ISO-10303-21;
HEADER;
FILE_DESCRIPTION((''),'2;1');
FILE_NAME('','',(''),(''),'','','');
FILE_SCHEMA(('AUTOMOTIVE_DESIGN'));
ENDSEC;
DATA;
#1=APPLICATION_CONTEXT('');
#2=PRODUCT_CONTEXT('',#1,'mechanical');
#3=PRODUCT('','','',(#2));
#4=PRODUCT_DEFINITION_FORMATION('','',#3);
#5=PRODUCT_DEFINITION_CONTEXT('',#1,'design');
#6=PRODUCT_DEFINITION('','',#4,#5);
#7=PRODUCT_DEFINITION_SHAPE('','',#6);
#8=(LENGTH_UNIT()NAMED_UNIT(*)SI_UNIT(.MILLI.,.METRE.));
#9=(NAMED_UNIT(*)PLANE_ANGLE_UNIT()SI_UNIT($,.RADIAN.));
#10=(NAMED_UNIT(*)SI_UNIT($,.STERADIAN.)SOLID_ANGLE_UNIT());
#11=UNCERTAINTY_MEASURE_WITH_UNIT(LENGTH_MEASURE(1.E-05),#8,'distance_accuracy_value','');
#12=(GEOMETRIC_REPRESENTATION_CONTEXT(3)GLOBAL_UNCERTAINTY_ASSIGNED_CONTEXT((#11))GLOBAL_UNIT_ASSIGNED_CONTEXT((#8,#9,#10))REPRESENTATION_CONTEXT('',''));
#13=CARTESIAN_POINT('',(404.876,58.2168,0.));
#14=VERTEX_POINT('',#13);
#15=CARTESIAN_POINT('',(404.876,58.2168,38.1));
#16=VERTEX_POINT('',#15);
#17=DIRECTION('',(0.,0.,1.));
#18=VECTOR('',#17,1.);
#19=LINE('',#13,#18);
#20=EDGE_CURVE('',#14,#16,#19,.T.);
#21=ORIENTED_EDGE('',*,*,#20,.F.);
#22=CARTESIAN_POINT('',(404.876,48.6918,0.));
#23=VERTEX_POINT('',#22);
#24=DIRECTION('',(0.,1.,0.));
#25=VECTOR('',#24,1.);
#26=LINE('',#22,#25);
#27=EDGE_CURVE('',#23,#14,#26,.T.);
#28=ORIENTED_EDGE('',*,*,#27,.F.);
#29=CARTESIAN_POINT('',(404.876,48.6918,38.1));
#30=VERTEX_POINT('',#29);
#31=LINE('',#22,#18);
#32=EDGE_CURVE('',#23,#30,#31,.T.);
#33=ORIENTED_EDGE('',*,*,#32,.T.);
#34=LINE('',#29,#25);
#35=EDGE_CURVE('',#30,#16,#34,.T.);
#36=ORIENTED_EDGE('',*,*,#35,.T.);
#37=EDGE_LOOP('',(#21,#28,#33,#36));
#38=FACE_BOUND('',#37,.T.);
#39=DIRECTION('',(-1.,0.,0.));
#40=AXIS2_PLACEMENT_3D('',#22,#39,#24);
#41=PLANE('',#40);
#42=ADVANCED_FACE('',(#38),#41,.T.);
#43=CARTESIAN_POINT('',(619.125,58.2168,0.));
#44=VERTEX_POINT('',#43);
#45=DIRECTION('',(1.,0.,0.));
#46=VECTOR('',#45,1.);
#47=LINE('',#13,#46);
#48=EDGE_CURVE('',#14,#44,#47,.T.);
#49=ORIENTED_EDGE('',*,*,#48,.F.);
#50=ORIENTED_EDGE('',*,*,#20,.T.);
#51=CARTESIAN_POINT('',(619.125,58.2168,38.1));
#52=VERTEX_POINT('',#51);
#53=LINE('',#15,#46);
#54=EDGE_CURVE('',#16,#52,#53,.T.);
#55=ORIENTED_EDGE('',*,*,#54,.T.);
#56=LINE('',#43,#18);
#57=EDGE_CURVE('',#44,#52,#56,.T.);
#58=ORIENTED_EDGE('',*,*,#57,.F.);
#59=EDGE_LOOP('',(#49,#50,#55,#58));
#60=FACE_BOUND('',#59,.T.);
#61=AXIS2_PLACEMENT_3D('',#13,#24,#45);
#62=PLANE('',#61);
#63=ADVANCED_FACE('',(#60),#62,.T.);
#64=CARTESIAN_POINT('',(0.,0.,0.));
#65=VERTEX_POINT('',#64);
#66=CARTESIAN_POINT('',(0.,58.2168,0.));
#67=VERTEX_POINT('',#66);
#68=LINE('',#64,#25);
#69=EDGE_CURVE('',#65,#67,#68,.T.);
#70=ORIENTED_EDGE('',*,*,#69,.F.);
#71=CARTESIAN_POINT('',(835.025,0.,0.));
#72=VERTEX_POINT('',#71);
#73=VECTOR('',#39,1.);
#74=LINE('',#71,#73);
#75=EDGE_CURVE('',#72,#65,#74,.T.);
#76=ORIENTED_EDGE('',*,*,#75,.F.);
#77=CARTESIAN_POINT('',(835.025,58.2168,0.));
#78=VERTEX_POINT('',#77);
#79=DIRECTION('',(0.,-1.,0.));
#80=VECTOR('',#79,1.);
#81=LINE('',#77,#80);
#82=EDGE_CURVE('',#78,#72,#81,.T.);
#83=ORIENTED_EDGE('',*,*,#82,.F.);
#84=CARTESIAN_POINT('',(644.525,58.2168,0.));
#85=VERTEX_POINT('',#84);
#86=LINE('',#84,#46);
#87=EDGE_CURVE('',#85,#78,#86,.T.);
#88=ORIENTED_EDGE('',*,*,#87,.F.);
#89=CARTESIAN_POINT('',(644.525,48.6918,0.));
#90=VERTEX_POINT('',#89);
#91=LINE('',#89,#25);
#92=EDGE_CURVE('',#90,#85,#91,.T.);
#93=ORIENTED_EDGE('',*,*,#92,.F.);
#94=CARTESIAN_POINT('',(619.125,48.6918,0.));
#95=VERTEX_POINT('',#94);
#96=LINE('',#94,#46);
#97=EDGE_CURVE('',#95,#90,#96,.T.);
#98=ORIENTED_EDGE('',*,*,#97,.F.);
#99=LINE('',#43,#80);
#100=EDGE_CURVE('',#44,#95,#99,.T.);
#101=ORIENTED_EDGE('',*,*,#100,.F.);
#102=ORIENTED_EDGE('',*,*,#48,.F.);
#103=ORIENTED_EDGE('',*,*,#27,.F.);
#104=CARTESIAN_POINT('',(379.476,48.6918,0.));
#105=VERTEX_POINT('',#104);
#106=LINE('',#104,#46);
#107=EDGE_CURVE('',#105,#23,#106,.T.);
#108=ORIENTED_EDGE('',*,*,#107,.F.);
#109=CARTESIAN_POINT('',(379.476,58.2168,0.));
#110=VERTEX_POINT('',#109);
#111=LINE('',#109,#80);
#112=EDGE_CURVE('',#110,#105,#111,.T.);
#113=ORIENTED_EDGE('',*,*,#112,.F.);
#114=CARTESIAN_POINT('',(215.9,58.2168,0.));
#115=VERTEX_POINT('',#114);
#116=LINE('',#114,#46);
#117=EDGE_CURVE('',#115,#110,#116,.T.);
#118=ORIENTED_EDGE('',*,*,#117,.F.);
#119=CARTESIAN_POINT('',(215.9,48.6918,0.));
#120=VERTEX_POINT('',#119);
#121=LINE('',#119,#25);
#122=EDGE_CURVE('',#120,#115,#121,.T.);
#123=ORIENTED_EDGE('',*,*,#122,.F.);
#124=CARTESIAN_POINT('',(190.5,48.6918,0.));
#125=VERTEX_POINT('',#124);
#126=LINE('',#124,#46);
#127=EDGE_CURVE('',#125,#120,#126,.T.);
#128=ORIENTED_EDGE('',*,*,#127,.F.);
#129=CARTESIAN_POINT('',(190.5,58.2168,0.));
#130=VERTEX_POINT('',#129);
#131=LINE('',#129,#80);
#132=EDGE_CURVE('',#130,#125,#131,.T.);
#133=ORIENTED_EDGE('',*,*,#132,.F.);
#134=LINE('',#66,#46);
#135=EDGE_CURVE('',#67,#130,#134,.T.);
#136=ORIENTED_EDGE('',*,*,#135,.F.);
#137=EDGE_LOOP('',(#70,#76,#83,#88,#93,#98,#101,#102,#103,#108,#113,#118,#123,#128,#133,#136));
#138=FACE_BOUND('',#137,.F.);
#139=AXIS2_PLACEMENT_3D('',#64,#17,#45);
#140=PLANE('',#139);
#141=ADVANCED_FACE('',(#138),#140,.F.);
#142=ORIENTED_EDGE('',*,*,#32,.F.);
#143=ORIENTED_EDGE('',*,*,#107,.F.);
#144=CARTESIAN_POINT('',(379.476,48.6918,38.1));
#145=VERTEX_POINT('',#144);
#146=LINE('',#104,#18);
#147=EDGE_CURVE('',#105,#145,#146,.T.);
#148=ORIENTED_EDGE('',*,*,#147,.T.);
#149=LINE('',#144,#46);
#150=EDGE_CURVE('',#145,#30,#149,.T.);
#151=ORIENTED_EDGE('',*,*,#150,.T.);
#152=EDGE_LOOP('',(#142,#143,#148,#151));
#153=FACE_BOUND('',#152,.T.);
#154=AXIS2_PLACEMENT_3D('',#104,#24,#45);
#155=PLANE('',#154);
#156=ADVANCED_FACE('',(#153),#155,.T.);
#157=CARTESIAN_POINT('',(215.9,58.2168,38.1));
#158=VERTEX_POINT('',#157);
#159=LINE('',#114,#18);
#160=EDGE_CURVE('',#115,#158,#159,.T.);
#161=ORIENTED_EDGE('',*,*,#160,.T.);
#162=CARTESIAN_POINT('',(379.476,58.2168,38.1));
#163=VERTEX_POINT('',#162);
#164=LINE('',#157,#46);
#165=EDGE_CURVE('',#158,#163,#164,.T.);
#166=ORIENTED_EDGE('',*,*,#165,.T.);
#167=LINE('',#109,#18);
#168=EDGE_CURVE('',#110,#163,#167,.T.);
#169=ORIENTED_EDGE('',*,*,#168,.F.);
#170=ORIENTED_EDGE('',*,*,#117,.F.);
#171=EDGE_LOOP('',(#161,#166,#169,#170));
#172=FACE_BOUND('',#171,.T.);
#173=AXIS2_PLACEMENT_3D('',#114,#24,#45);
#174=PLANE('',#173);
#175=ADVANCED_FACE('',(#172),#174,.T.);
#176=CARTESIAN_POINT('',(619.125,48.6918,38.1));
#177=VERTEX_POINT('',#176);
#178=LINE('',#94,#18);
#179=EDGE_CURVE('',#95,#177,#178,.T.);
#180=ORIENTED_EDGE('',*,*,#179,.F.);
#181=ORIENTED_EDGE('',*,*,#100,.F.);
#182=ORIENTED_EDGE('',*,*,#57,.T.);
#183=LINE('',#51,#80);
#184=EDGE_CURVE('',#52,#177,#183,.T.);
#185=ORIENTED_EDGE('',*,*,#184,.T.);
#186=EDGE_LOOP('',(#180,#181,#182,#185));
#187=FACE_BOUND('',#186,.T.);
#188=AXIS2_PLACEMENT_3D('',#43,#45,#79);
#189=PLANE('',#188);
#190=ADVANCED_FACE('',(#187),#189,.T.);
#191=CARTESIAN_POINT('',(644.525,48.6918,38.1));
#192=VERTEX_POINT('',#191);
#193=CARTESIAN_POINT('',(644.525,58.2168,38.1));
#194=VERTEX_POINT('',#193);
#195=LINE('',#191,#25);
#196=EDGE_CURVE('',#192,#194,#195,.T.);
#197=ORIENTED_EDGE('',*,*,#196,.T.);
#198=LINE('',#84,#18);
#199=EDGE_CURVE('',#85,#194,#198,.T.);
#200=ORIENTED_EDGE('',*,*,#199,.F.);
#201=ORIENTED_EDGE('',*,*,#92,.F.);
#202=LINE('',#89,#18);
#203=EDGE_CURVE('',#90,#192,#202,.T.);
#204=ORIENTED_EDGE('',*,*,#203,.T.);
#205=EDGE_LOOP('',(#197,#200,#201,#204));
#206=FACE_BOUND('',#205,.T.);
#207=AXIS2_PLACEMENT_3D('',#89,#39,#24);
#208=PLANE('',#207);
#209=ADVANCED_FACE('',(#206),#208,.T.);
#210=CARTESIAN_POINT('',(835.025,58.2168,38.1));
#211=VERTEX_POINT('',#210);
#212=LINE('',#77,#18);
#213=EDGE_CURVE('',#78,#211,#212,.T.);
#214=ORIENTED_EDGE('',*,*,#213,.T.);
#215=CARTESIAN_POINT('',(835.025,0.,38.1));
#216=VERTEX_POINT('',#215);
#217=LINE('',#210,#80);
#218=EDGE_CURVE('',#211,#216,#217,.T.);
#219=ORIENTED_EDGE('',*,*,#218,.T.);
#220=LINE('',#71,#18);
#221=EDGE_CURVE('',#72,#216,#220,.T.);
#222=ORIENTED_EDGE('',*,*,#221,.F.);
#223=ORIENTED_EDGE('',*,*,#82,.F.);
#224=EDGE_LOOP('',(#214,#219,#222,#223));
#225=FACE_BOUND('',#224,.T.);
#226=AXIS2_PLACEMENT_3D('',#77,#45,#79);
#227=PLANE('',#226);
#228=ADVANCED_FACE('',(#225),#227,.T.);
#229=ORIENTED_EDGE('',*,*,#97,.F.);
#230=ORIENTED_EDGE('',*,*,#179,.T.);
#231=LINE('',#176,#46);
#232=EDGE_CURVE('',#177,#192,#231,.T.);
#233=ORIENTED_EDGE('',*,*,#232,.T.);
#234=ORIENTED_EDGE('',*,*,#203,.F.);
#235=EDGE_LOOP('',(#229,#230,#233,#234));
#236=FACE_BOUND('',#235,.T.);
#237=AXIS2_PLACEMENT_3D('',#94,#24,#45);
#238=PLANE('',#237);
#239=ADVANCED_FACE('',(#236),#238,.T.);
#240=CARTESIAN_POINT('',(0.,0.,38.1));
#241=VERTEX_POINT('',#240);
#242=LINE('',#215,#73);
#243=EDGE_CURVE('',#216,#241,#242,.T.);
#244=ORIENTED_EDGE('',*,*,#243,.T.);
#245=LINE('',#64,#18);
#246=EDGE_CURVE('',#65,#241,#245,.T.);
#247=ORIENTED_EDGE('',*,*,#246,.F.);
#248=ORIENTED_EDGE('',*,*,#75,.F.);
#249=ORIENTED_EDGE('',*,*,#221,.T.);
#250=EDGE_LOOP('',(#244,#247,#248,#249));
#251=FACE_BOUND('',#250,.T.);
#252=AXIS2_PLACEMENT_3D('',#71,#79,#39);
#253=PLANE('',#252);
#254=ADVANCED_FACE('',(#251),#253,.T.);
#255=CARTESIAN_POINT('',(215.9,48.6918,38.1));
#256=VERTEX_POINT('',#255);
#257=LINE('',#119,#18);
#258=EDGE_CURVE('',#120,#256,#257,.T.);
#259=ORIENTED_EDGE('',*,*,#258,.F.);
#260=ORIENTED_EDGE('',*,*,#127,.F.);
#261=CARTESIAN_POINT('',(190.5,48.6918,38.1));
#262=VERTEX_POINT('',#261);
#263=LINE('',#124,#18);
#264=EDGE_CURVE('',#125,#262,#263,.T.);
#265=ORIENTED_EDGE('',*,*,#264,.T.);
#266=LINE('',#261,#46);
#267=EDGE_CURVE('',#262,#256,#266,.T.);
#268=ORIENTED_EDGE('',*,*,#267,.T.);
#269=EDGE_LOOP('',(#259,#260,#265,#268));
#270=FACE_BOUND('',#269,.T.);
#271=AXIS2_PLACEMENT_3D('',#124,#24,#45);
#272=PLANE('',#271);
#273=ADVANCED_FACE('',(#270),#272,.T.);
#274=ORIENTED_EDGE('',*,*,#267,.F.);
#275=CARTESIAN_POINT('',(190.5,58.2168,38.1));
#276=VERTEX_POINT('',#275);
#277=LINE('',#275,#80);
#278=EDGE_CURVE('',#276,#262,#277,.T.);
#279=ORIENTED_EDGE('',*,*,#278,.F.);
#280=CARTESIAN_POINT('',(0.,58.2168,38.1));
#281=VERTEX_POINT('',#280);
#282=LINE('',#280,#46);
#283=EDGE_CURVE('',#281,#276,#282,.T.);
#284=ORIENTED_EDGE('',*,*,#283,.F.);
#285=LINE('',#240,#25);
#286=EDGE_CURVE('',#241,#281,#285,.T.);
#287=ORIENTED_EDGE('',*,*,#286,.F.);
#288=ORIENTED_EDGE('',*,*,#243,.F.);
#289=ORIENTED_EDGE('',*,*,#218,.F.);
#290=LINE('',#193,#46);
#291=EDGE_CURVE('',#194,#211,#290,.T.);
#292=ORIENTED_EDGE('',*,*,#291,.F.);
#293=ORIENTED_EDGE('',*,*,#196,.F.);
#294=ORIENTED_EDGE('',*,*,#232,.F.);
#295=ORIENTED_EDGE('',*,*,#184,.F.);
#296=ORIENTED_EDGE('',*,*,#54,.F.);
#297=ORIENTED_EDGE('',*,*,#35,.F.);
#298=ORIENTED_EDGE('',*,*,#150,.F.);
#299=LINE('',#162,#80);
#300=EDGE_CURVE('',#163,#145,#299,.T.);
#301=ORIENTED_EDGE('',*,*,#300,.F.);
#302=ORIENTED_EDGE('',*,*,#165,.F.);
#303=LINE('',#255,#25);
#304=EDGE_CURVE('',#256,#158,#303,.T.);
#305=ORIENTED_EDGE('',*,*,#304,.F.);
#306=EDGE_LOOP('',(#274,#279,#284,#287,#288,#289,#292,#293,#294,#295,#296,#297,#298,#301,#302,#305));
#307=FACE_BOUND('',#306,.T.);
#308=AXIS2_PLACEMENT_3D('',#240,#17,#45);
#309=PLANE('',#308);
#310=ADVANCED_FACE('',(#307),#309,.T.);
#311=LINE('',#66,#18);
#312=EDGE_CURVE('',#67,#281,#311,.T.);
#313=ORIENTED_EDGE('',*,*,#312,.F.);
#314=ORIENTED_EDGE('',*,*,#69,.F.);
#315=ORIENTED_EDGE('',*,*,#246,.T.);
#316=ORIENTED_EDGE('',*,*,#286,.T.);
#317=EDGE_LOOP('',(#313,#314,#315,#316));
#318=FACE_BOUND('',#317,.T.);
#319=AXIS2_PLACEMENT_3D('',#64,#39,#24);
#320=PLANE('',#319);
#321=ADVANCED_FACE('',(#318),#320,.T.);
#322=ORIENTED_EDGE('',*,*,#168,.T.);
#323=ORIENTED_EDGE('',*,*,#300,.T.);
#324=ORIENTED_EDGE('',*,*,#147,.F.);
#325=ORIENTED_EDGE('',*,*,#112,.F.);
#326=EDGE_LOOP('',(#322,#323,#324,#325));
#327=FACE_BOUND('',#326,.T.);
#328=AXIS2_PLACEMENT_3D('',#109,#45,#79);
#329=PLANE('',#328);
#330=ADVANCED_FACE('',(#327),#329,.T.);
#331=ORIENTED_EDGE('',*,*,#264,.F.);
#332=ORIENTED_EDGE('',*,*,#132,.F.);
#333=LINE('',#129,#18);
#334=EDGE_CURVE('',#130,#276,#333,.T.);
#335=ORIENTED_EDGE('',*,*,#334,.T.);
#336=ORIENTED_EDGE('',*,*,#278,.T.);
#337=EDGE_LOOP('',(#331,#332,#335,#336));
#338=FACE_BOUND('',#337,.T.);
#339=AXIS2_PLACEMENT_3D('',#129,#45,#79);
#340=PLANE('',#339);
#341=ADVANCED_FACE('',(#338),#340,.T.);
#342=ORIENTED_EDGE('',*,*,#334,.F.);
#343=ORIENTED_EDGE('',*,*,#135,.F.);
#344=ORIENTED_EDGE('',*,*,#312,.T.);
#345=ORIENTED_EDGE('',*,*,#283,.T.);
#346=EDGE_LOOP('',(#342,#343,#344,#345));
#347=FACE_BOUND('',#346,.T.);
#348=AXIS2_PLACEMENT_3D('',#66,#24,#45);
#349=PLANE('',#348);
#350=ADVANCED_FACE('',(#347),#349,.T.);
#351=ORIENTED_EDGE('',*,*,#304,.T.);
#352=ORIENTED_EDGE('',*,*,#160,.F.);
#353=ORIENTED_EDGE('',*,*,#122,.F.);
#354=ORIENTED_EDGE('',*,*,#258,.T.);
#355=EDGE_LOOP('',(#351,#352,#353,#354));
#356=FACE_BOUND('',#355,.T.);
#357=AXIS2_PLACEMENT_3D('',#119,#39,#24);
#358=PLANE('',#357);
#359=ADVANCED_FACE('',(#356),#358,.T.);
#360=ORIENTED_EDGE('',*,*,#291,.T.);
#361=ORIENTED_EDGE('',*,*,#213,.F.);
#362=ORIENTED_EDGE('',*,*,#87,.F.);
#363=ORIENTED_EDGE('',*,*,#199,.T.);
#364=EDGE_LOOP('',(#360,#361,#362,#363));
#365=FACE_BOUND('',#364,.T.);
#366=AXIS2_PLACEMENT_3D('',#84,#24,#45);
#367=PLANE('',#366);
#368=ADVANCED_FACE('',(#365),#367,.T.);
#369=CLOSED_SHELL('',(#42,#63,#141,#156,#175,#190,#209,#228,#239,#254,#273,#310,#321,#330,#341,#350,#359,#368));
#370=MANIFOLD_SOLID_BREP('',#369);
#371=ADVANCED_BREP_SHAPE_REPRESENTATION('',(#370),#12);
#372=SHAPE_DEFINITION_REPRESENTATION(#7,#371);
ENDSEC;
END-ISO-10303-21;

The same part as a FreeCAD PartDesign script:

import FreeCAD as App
import Part
import Sketcher
Q = App.Units.Quantity


def add_polygon(sketch, points):
    """Adds a closed chain of lines whose ends are joined by coincident constraints."""
    first, n = sketch.GeometryCount, len(points)
    for a, b in zip(points, points[1:] + points[:1]):
        sketch.addGeometry(Part.LineSegment(App.Vector(*a, 0), App.Vector(*b, 0)), False)
    for i in range(n):
        sketch.addConstraint(Sketcher.Constraint("Coincident", first + i, 2, first + (i + 1) % n, 1))

doc = App.newDocument("Part")
params = doc.addObject("Spreadsheet::Sheet", "Params")
for row, (alias, value) in enumerate([
    ("sketch1_width", "1 in"),
    ("sketch1_width2", "7.5 in"),
    ("sketch1_width3", "6.44 in"),
    ("sketch1_width4", "32.875 in"),
    ("sketch1_height", "2.292 in"),
    ("pad1_length", "1.5 in"),
], start=1):
    params.set(f"A{row}", alias)
    params.set(f"B{row}", "=" + value)
    params.setAlias(f"B{row}", alias)

body = doc.addObject("PartDesign::Body", "Body")

sketch1 = doc.addObject("Sketcher::SketchObject", "Sketch")
body.addObject(sketch1)
sketch1.AttachmentSupport = (doc.XY_Plane, [""])
sketch1.MapMode = "FlatFace"
add_polygon(sketch1, [(0, 58.2168), (0, 0), (835.025, 0), (835.025, 58.2168), (644.525, 58.2168), (644.525, 48.6918), (619.125, 48.6918), (619.125, 58.2168), (404.876, 58.2168), (404.876, 48.6918), (379.476, 48.6918), (379.476, 58.2168), (215.9, 58.2168), (215.9, 48.6918), (190.5, 48.6918), (190.5, 58.2168)])
sketch1.addConstraint(Sketcher.Constraint("Vertical", 0))
sketch1.addConstraint(Sketcher.Constraint("Horizontal", 1))
sketch1.addConstraint(Sketcher.Constraint("Vertical", 2))
sketch1.addConstraint(Sketcher.Constraint("Horizontal", 3))
sketch1.addConstraint(Sketcher.Constraint("Vertical", 4))
sketch1.addConstraint(Sketcher.Constraint("Horizontal", 5))
sketch1.addConstraint(Sketcher.Constraint("Vertical", 6))
sketch1.addConstraint(Sketcher.Constraint("Horizontal", 7))
sketch1.addConstraint(Sketcher.Constraint("Vertical", 8))
sketch1.addConstraint(Sketcher.Constraint("Horizontal", 9))
sketch1.addConstraint(Sketcher.Constraint("Vertical", 10))
sketch1.addConstraint(Sketcher.Constraint("Horizontal", 11))
sketch1.addConstraint(Sketcher.Constraint("Vertical", 12))
sketch1.addConstraint(Sketcher.Constraint("Horizontal", 13))
sketch1.addConstraint(Sketcher.Constraint("Vertical", 14))
sketch1.addConstraint(Sketcher.Constraint("Horizontal", 15))
sketch1.addConstraint(Sketcher.Constraint("Coincident", 0, 2, -1, 1))
sketch1.addConstraint(Sketcher.Constraint("Horizontal", 3, 2, 6, 2))
sketch1.addConstraint(Sketcher.Constraint("Horizontal", 5, 2, 8, 2))
sketch1.addConstraint(Sketcher.Constraint("Horizontal", 7, 2, 10, 2))
sketch1.addConstraint(Sketcher.Constraint("Horizontal", 9, 2, 12, 2))
sketch1.addConstraint(Sketcher.Constraint("Horizontal", 11, 2, 14, 2))
sketch1.addConstraint(Sketcher.Constraint("Equal", 5, 9))
sketch1.addConstraint(Sketcher.Constraint("Equal", 9, 13))
sketch1.addConstraint(Sketcher.Constraint("Equal", 3, 15))
sketch1.addConstraint(Sketcher.Constraint("DistanceX", 5, 2, 5, 1, Q("1 in")))
sketch1.addConstraint(Sketcher.Constraint("DistanceX", 3, 2, 3, 1, Q("7.5 in")))
sketch1.addConstraint(Sketcher.Constraint("DistanceX", 11, 2, 11, 1, Q("6.44 in")))
sketch1.addConstraint(Sketcher.Constraint("DistanceX", 1, 1, 1, 2, Q("32.875 in")))
sketch1.addConstraint(Sketcher.Constraint("DistanceY", 0, 2, 0, 1, Q("2.292 in")))
sketch1.addConstraint(Sketcher.Constraint("DistanceY", 4, 2, 4, 1, Q("0.375 in")))
sketch1.setExpression("Constraints[41]", "Params.sketch1_width")
sketch1.setExpression("Constraints[42]", "Params.sketch1_width2")
sketch1.setExpression("Constraints[43]", "Params.sketch1_width3")
sketch1.setExpression("Constraints[44]", "Params.sketch1_width4")
sketch1.setExpression("Constraints[45]", "Params.sketch1_height")
pad1 = doc.addObject("PartDesign::Pad", "Pad")
body.addObject(pad1)
pad1.Profile = sketch1
pad1.setExpression("Length", "Params.pad1_length")

doc.recompute()
